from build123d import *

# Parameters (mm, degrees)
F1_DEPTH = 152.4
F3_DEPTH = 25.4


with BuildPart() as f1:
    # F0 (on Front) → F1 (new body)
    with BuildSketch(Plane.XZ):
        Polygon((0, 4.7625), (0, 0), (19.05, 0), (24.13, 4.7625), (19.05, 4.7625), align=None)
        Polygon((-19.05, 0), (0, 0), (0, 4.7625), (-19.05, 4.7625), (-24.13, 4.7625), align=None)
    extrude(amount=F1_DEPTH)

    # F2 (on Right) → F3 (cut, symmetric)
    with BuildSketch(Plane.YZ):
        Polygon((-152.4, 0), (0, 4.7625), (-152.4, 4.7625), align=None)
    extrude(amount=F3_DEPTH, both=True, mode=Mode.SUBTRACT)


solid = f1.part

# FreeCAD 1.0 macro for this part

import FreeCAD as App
import Part
import Sketcher

V = App.Vector
Q = App.Units.Quantity

doc = App.newDocument("Part")
body = doc.addObject("PartDesign::Body", "Body")

sketch1 = body.newObject("Sketcher::SketchObject", "Sketch")
sketch1.AttachmentSupport = (doc.getObject("XZ_Plane"), [""])
sketch1.MapMode = "FlatFace"
sketch1.addGeometry([
    Part.LineSegment(V(19.05, 0, 0), V(24.13, 4.7625, 0)),
    Part.LineSegment(V(24.13, 4.7625, 0), V(-24.13, 4.7625, 0)),
    Part.LineSegment(V(-24.13, 4.7625, 0), V(-19.05, 0, 0)),
    Part.LineSegment(V(-19.05, 0, 0), V(19.05, 0, 0)),
], False)
sketch1.addConstraint([
    Sketcher.Constraint("Coincident", 0, 2, 1, 1),
    Sketcher.Constraint("Coincident", 1, 2, 2, 1),
    Sketcher.Constraint("Coincident", 2, 2, 3, 1),
    Sketcher.Constraint("Coincident", 3, 2, 0, 1),
    Sketcher.Constraint("Horizontal", 1),
    Sketcher.Constraint("Horizontal", 3),
    Sketcher.Constraint("Symmetric", 2, 2, 3, 2, -1, 1),
    Sketcher.Constraint("Equal", 0, 2),
    Sketcher.Constraint("DistanceX", 1, 2, 1, 1, Q("1.9 in")),
    Sketcher.Constraint("DistanceX", 3, 1, 3, 2, Q("1.5 in")),
    Sketcher.Constraint("DistanceY", -1, 1, 0, 2, Q("0.1875 in")),
])
pad1 = body.newObject("PartDesign::Pad", "Pad")
pad1.Profile = sketch1
pad1.Length = Q("6 in")

sketch2 = body.newObject("Sketcher::SketchObject", "Sketch001")
sketch2.AttachmentSupport = (doc.getObject("YZ_Plane"), [""])
sketch2.MapMode = "FlatFace"
sketch2.addGeometry([
    Part.LineSegment(V(-152.4, 0, 0), V(0, 4.7625, 0)),
    Part.LineSegment(V(0, 4.7625, 0), V(-152.4, 4.7625, 0)),
    Part.LineSegment(V(-152.4, 4.7625, 0), V(-152.4, 0, 0)),
], False)
sketch2.addConstraint([
    Sketcher.Constraint("Coincident", 0, 2, 1, 1),
    Sketcher.Constraint("Coincident", 1, 2, 2, 1),
    Sketcher.Constraint("Coincident", 2, 2, 0, 1),
    Sketcher.Constraint("Horizontal", 1),
    Sketcher.Constraint("Vertical", 2),
    Sketcher.Constraint("PointOnObject", 0, 2, -2),
    Sketcher.Constraint("PointOnObject", 2, 2, -1),
    Sketcher.Constraint("DistanceX", 1, 2, 1, 1, Q("6 in")),
    Sketcher.Constraint("DistanceY", 2, 2, 2, 1, Q("0.1875 in")),
])
pocket1 = body.newObject("PartDesign::Pocket", "Pocket")
pocket1.Profile = sketch2
pocket1.Length = Q("2 in")
pocket1.Midplane = True

doc.recompute()
